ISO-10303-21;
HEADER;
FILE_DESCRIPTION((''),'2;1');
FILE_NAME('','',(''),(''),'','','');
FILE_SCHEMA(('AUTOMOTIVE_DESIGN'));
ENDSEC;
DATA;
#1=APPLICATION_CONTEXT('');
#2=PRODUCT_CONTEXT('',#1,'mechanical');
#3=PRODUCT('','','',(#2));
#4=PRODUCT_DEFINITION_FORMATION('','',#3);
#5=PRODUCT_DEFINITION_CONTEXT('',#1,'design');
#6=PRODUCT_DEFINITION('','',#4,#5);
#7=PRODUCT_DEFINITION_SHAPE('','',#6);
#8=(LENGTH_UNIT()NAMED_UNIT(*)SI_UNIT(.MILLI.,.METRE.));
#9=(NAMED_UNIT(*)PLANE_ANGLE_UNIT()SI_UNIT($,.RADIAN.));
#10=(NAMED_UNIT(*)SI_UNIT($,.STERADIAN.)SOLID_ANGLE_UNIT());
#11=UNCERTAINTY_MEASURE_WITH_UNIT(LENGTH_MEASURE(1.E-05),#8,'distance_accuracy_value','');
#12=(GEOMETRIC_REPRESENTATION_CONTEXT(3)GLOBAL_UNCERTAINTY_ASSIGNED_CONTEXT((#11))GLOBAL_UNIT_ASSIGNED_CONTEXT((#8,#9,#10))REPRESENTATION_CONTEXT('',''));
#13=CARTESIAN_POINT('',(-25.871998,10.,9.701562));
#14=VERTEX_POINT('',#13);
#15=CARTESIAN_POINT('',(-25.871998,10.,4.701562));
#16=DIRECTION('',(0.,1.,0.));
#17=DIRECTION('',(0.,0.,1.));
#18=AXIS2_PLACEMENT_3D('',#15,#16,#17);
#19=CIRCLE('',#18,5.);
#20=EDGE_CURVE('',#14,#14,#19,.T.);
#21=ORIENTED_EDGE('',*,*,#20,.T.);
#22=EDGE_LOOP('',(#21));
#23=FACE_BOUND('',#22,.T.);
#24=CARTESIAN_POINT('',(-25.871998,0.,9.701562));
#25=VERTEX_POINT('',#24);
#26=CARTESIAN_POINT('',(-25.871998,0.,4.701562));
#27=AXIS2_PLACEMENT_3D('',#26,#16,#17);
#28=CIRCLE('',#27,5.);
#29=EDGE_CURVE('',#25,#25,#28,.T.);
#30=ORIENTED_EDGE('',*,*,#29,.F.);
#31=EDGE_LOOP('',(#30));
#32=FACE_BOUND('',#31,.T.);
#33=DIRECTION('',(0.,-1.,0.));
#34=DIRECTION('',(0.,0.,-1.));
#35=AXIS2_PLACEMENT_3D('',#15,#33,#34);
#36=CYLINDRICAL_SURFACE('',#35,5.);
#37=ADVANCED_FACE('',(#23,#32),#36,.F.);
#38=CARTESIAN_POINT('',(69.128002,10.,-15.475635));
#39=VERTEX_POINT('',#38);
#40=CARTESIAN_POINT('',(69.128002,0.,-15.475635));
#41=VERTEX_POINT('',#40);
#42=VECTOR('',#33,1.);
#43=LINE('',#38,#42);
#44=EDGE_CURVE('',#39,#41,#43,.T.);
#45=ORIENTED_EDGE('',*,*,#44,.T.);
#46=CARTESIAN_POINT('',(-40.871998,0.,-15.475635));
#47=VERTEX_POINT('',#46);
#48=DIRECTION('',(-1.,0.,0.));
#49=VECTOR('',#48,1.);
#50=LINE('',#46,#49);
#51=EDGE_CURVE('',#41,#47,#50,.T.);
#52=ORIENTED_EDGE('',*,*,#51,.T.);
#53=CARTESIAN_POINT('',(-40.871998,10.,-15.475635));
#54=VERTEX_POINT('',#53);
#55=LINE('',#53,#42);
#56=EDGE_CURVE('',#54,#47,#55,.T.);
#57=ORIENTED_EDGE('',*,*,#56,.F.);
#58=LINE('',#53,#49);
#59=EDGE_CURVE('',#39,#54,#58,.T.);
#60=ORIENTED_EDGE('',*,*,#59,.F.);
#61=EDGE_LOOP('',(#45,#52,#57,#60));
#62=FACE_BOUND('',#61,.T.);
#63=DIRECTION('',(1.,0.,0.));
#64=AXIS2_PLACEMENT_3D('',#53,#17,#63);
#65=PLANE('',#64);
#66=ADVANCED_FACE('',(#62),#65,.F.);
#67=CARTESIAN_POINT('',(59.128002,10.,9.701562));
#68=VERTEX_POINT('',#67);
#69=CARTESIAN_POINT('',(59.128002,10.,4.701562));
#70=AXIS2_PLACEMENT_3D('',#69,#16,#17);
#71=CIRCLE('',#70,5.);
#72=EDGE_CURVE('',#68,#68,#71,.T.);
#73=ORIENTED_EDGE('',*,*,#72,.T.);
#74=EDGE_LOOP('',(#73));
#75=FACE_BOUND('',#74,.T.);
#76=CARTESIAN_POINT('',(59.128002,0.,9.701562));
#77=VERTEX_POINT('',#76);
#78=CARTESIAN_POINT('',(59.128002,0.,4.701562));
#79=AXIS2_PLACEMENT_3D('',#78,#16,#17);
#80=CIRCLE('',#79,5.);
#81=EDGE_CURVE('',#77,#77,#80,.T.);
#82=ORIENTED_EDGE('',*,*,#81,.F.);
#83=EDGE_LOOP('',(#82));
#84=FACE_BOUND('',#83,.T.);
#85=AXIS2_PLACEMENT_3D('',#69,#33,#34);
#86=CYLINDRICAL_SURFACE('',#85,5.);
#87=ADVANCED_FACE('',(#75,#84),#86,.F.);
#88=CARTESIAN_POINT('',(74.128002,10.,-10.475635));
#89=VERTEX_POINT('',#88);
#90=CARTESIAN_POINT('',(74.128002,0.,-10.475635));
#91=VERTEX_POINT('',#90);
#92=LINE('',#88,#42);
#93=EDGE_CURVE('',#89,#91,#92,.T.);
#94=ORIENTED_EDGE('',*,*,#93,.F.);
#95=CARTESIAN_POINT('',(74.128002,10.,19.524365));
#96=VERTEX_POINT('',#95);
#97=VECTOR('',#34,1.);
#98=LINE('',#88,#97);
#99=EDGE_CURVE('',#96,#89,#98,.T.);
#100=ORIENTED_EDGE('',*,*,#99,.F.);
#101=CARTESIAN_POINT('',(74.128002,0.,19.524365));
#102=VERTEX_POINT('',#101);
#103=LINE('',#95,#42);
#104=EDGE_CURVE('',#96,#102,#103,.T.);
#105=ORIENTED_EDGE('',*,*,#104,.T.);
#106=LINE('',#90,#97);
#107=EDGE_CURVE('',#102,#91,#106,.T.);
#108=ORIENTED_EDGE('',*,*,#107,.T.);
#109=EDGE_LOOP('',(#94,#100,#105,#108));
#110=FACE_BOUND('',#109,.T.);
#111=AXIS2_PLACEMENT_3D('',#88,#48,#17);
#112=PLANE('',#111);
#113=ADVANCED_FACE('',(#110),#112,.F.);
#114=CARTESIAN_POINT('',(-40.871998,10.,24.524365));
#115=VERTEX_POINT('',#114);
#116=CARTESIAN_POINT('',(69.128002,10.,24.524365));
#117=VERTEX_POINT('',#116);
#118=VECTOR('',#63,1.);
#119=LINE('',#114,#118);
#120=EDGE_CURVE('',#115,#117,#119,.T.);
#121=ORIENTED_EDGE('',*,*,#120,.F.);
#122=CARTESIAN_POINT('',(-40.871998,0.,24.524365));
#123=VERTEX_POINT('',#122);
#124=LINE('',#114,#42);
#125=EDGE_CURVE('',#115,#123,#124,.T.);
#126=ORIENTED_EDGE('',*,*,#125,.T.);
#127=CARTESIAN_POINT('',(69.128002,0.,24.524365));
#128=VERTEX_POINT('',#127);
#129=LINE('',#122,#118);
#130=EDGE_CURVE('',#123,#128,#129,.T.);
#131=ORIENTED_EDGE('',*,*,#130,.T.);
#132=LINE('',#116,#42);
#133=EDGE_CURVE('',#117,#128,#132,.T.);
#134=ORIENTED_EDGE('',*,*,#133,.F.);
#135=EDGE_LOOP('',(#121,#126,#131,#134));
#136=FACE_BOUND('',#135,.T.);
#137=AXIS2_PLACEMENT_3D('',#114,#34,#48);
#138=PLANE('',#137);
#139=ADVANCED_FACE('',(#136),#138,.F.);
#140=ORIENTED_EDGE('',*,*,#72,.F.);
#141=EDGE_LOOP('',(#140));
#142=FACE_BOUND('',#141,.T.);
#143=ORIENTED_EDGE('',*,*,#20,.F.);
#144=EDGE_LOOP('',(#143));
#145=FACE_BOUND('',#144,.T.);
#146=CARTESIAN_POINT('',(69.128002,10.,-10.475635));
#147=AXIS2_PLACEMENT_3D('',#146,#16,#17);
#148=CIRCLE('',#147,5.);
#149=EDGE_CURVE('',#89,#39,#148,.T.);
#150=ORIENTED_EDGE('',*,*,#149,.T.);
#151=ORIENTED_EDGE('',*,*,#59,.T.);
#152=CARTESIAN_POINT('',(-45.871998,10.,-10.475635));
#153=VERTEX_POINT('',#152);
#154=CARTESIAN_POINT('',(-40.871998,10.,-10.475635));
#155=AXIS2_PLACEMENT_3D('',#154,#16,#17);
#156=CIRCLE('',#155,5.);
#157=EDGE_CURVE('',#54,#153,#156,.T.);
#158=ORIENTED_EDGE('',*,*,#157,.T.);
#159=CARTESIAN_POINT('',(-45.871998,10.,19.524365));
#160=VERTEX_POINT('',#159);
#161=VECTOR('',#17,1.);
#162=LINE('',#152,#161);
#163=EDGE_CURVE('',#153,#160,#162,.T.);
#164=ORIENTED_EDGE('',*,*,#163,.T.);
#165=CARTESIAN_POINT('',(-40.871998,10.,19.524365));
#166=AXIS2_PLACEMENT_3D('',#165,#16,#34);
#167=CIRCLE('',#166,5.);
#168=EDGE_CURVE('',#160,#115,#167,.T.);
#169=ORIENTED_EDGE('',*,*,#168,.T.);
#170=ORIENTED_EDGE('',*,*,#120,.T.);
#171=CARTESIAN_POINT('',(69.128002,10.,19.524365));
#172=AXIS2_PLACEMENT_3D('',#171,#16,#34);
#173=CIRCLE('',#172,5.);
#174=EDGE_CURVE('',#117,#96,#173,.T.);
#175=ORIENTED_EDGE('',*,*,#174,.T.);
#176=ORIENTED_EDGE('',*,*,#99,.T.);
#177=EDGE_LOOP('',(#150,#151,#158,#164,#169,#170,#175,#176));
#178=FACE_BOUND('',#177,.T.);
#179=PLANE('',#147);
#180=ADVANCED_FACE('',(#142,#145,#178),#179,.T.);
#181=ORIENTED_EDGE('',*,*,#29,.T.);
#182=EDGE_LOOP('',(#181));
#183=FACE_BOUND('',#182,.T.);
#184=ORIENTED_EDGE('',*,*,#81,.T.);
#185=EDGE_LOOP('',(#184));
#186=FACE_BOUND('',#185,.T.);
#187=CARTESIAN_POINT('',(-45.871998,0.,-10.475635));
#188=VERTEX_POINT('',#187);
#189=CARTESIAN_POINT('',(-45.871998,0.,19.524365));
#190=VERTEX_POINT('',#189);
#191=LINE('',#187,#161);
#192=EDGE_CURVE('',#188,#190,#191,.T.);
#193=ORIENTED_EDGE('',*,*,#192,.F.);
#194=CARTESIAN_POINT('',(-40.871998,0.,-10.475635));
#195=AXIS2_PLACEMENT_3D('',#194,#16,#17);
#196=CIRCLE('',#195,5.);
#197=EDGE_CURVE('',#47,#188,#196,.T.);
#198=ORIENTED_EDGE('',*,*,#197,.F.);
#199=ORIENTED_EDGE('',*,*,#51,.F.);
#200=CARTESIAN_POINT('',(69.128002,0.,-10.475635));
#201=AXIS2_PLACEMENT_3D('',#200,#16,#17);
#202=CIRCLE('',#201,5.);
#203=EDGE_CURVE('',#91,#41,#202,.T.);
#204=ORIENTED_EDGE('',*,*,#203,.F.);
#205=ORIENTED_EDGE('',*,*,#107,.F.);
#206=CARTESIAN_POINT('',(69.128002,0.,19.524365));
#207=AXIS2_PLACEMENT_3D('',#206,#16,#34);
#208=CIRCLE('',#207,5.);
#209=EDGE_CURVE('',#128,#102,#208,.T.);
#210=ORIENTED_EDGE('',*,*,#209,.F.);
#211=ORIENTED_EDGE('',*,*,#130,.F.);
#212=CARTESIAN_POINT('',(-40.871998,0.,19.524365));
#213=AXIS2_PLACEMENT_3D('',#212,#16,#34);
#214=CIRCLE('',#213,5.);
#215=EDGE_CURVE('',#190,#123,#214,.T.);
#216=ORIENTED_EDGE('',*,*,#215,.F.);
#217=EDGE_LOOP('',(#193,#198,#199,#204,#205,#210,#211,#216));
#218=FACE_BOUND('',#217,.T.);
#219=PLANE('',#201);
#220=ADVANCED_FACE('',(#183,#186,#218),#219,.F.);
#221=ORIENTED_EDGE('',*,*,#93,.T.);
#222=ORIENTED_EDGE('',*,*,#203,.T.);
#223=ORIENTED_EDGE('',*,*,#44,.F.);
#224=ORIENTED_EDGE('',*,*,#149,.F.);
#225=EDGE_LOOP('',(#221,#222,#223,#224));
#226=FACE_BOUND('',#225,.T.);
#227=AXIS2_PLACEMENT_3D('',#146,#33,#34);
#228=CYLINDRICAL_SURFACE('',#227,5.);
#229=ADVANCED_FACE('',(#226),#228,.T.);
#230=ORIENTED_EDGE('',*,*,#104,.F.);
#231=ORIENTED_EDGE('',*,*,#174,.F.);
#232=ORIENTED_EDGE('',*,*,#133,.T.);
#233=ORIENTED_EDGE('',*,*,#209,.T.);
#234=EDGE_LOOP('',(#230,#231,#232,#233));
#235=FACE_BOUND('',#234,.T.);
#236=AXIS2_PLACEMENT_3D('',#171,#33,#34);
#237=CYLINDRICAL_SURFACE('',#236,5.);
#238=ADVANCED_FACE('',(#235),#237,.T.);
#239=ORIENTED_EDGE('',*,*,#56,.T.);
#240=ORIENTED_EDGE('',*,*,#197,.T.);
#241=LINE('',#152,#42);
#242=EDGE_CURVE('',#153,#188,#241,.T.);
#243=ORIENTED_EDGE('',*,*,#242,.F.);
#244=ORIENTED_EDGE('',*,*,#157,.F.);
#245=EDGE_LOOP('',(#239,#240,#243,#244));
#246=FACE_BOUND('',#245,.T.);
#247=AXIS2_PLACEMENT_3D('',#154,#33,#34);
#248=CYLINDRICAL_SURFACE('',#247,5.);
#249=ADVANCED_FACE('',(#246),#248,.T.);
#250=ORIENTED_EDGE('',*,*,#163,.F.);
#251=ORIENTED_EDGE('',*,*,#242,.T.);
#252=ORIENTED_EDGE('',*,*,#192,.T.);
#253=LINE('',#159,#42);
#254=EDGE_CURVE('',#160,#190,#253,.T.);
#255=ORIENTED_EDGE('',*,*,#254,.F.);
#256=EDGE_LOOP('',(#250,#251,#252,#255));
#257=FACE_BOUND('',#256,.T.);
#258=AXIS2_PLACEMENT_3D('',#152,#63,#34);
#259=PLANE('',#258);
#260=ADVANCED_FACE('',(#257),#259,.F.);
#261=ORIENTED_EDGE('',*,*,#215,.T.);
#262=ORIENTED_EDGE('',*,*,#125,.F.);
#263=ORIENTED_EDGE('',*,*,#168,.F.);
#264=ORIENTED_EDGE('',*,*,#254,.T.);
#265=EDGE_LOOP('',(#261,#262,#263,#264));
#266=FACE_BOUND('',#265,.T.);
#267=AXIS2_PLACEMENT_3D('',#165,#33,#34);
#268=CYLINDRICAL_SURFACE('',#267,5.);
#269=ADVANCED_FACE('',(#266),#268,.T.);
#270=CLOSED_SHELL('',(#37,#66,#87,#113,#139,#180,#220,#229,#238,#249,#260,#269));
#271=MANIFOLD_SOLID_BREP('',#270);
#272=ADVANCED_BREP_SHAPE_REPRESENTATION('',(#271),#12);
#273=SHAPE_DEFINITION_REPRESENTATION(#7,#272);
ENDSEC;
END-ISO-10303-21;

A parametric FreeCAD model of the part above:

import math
import FreeCAD as App
import Part
import Sketcher
from FreeCAD import Vector
Q = App.Units.Quantity

doc = App.newDocument("Part")
params = doc.addObject("Spreadsheet::Sheet", "Params")
for row, (alias, value) in enumerate([
    ("sketch1_diameter", "10 mm"),
    ("sketch1_width", "110 mm"),
    ("sketch1_height", "30 mm"),
    ("pad1_length", "10 mm"),
], start=1):
    params.set(f"A{row}", alias)
    params.set(f"B{row}", "=" + value)
    params.setAlias(f"B{row}", alias)

body = doc.addObject("PartDesign::Body", "Body")

sketch1 = body.newObject("Sketcher::SketchObject", "Sketch")
sketch1.AttachmentSupport = (doc.getObject("XZ_Plane"), [""])
sketch1.MapMode = "FlatFace"
sketch1.addGeometry([
    Part.LineSegment(Vector(69, -15, 0), Vector(-41, -15, 0)),
    Part.ArcOfCircle(Part.Circle(Vector(-41, -10, 0), Vector(0, 0, 1), 5), math.radians(-180), math.radians(-90)),
    Part.LineSegment(Vector(-46, -10, 0), Vector(-46, 20, 0)),
    Part.ArcOfCircle(Part.Circle(Vector(-41, 20, 0), Vector(0, 0, 1), 5), math.radians(90), math.radians(180)),
    Part.LineSegment(Vector(-41, 25, 0), Vector(69, 25, 0)),
    Part.ArcOfCircle(Part.Circle(Vector(69, 20, 0), Vector(0, 0, 1), 5), math.radians(0), math.radians(90)),
    Part.LineSegment(Vector(74, 20, 0), Vector(74, -10, 0)),
    Part.ArcOfCircle(Part.Circle(Vector(69, -10, 0), Vector(0, 0, 1), 5), math.radians(-90), math.radians(0)),
    Part.Circle(Vector(59, 5, 0), Vector(0, 0, 1), 5),
    Part.Circle(Vector(-26, 5, 0), Vector(0, 0, 1), 5),
], False)
sketch1.addConstraint([
    Sketcher.Constraint("Tangent", 0, 2, 1, 2),
    Sketcher.Constraint("Tangent", 1, 1, 2, 1),
    Sketcher.Constraint("Tangent", 2, 2, 3, 2),
    Sketcher.Constraint("Tangent", 3, 1, 4, 1),
    Sketcher.Constraint("Tangent", 4, 2, 5, 2),
    Sketcher.Constraint("Tangent", 5, 1, 6, 1),
    Sketcher.Constraint("Tangent", 6, 2, 7, 2),
    Sketcher.Constraint("Tangent", 7, 1, 0, 1),
    Sketcher.Constraint("Horizontal", 0),
    Sketcher.Constraint("Vertical", 2),
    Sketcher.Constraint("Horizontal", 4),
    Sketcher.Constraint("Vertical", 6),
    Sketcher.Constraint("Equal", 1, 3),
    Sketcher.Constraint("Equal", 3, 5),
    Sketcher.Constraint("Equal", 5, 7),
    Sketcher.Constraint("Equal", 7, 8),
    Sketcher.Constraint("Equal", 8, 9),
    Sketcher.Constraint("Horizontal", 8, 3, 9, 3),
    Sketcher.Constraint("Diameter", 8, Q("10 mm")),
    Sketcher.Constraint("DistanceX", 0, 2, 0, 1, Q("110 mm")),
    Sketcher.Constraint("DistanceY", 2, 1, 2, 2, Q("30 mm")),
    Sketcher.Constraint("DistanceX", 8, 3, 5, 3, Q("10 mm")),
    Sketcher.Constraint("DistanceX", 3, 3, 9, 3, Q("15 mm")),
    Sketcher.Constraint("DistanceX", 1, 3, -1, 1, Q("40.871998 mm")),
    Sketcher.Constraint("DistanceY", 1, 3, -1, 1, Q("10.475635 mm")),
    Sketcher.Constraint("DistanceY", -1, 1, 8, 3, Q("4.701562 mm")),
])
sketch1.setExpression("Constraints[18]", "Params.sketch1_diameter")
sketch1.setExpression("Constraints[19]", "Params.sketch1_width")
sketch1.setExpression("Constraints[20]", "Params.sketch1_height")
pad1 = body.newObject("PartDesign::Pad", "Pad")
pad1.Profile = sketch1
pad1.setExpression("Length", "Params.pad1_length")
pad1.Reversed = True

doc.recompute()
